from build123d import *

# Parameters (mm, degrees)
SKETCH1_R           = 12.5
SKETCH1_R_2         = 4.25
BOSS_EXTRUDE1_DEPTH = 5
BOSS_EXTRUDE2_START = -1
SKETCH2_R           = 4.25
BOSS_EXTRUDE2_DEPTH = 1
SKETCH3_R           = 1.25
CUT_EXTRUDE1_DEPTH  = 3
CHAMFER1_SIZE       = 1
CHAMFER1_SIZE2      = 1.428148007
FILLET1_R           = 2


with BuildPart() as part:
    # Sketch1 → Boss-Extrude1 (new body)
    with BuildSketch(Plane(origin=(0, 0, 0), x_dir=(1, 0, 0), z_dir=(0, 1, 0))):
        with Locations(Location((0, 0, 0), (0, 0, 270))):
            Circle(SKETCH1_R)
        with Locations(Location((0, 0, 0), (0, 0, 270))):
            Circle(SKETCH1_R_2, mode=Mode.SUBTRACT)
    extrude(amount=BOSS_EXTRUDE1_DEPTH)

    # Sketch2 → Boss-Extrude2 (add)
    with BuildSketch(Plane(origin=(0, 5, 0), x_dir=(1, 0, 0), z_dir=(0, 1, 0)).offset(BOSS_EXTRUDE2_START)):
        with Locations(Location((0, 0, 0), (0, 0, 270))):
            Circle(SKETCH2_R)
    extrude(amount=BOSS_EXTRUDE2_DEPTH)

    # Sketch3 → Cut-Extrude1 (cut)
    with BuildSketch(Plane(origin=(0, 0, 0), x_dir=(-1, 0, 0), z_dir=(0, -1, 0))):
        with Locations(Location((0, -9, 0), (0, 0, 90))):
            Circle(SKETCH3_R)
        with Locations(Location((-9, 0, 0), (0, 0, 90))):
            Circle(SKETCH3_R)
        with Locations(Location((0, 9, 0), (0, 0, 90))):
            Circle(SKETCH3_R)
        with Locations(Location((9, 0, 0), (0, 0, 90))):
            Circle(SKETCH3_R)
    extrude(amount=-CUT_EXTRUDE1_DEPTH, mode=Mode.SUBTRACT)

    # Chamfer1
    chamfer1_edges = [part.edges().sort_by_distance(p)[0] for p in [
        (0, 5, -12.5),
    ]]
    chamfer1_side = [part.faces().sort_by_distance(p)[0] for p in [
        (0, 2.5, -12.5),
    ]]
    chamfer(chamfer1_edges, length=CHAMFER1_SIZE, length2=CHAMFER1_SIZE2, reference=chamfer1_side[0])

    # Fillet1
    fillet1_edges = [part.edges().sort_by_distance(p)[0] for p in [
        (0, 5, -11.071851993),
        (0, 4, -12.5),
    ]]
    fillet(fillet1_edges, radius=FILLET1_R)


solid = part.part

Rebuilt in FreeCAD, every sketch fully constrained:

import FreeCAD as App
import Part
import Sketcher
Q = App.Units.Quantity


def edges_at(feature, points):
    """Names of the edges that pass closest to the given points."""
    edges = feature.Shape.Edges
    near = lambda p: min(range(len(edges)), key=lambda i: edges[i].distToShape(Part.Vertex(*p))[0])
    return sorted({f"Edge{near(p) + 1}" for p in points})

doc = App.newDocument("Part")
body = doc.addObject("PartDesign::Body", "Body")

# Sketch on XZ plane
sketch1 = doc.addObject("Sketcher::SketchObject", "Sketch")
body.addObject(sketch1)
sketch1.AttachmentSupport = (doc.XZ_Plane, [""])
sketch1.MapMode = "FlatFace"
sketch1.addGeometry(Part.Circle(App.Vector(0, 0, 0), App.Vector(0, 0, 1), 12.5), False)
sketch1.addGeometry(Part.Circle(App.Vector(0, 0, 0), App.Vector(0, 0, 1), 4.2), False)
sketch1.addConstraint(Sketcher.Constraint("Coincident", 0, 3, -1, 1))
sketch1.addConstraint(Sketcher.Constraint("Coincident", 1, 3, -1, 1))
sketch1.addConstraint(Sketcher.Constraint("Diameter", 0, Q("25 mm")))
sketch1.addConstraint(Sketcher.Constraint("Diameter", 1, Q("8.5 mm")))
pad1 = doc.addObject("PartDesign::Pad", "Pad")
body.addObject(pad1)
pad1.Profile = sketch1
pad1.Length = 5
pad1.Reversed = True

# Sketch on XZ plane
sketch2 = doc.addObject("Sketcher::SketchObject", "Sketch001")
body.addObject(sketch2)
sketch2.AttachmentSupport = (doc.XZ_Plane, [""])
sketch2.MapMode = "FlatFace"
sketch2.AttachmentOffset = App.Placement(App.Vector(0, 0, -4), App.Rotation())
sketch2.addGeometry(Part.Circle(App.Vector(0, 0, 0), App.Vector(0, 0, 1), 4.2), False)
sketch2.addConstraint(Sketcher.Constraint("Coincident", 0, 3, -1, 1))
sketch2.addConstraint(Sketcher.Constraint("Diameter", 0, Q("8.5 mm")))
pad2 = doc.addObject("PartDesign::Pad", "Pad001")
body.addObject(pad2)
pad2.Profile = sketch2
pad2.Length = 1
pad2.Reversed = True

# Sketch on XZ plane
sketch3 = doc.addObject("Sketcher::SketchObject", "Sketch002")
body.addObject(sketch3)
sketch3.AttachmentSupport = (doc.XZ_Plane, [""])
sketch3.MapMode = "FlatFace"
sketch3.addGeometry(Part.Circle(App.Vector(0, 9, 0), App.Vector(0, 0, 1), 1.2), False)
sketch3.addGeometry(Part.Circle(App.Vector(9, 0, 0), App.Vector(0, 0, 1), 1.2), False)
sketch3.addGeometry(Part.Circle(App.Vector(0, -9, 0), App.Vector(0, 0, 1), 1.2), False)
sketch3.addGeometry(Part.Circle(App.Vector(-9, 0, 0), App.Vector(0, 0, 1), 1.2), False)
sketch3.addConstraint(Sketcher.Constraint("Equal", 0, 1))
sketch3.addConstraint(Sketcher.Constraint("Equal", 1, 2))
sketch3.addConstraint(Sketcher.Constraint("Equal", 2, 3))
sketch3.addConstraint(Sketcher.Constraint("Symmetric", 0, 3, 2, 3, -1, 1))
sketch3.addConstraint(Sketcher.Constraint("Symmetric", 1, 3, 3, 3, -1, 1))
sketch3.addConstraint(Sketcher.Constraint("PointOnObject", 0, 3, -2))
sketch3.addConstraint(Sketcher.Constraint("PointOnObject", 1, 3, -1))
sketch3.addConstraint(Sketcher.Constraint("Diameter", 0, Q("2.5 mm")))
sketch3.addConstraint(Sketcher.Constraint("DistanceY", -1, 1, 0, 3, Q("9 mm")))
sketch3.addConstraint(Sketcher.Constraint("DistanceX", -1, 1, 1, 3, Q("9 mm")))
pocket1 = doc.addObject("PartDesign::Pocket", "Pocket")
body.addObject(pocket1)
pocket1.Profile = sketch3
pocket1.Length = 3
doc.recompute()

chamfer = doc.addObject("PartDesign::Chamfer", "Chamfer")
body.addObject(chamfer)
chamfer.Base = (pocket1, edges_at(pocket1, [(0, 5, -12.5)]))
chamfer.ChamferType = "Two distances"
chamfer.Size = 1
chamfer.Size2 = 1.428148
doc.recompute()

fillet = doc.addObject("PartDesign::Fillet", "Fillet")
body.addObject(fillet)
fillet.Base = (chamfer, edges_at(chamfer, [(0, 5, -11.072), (0, 4, -12.5)]))
fillet.Radius = 2

doc.recompute()
